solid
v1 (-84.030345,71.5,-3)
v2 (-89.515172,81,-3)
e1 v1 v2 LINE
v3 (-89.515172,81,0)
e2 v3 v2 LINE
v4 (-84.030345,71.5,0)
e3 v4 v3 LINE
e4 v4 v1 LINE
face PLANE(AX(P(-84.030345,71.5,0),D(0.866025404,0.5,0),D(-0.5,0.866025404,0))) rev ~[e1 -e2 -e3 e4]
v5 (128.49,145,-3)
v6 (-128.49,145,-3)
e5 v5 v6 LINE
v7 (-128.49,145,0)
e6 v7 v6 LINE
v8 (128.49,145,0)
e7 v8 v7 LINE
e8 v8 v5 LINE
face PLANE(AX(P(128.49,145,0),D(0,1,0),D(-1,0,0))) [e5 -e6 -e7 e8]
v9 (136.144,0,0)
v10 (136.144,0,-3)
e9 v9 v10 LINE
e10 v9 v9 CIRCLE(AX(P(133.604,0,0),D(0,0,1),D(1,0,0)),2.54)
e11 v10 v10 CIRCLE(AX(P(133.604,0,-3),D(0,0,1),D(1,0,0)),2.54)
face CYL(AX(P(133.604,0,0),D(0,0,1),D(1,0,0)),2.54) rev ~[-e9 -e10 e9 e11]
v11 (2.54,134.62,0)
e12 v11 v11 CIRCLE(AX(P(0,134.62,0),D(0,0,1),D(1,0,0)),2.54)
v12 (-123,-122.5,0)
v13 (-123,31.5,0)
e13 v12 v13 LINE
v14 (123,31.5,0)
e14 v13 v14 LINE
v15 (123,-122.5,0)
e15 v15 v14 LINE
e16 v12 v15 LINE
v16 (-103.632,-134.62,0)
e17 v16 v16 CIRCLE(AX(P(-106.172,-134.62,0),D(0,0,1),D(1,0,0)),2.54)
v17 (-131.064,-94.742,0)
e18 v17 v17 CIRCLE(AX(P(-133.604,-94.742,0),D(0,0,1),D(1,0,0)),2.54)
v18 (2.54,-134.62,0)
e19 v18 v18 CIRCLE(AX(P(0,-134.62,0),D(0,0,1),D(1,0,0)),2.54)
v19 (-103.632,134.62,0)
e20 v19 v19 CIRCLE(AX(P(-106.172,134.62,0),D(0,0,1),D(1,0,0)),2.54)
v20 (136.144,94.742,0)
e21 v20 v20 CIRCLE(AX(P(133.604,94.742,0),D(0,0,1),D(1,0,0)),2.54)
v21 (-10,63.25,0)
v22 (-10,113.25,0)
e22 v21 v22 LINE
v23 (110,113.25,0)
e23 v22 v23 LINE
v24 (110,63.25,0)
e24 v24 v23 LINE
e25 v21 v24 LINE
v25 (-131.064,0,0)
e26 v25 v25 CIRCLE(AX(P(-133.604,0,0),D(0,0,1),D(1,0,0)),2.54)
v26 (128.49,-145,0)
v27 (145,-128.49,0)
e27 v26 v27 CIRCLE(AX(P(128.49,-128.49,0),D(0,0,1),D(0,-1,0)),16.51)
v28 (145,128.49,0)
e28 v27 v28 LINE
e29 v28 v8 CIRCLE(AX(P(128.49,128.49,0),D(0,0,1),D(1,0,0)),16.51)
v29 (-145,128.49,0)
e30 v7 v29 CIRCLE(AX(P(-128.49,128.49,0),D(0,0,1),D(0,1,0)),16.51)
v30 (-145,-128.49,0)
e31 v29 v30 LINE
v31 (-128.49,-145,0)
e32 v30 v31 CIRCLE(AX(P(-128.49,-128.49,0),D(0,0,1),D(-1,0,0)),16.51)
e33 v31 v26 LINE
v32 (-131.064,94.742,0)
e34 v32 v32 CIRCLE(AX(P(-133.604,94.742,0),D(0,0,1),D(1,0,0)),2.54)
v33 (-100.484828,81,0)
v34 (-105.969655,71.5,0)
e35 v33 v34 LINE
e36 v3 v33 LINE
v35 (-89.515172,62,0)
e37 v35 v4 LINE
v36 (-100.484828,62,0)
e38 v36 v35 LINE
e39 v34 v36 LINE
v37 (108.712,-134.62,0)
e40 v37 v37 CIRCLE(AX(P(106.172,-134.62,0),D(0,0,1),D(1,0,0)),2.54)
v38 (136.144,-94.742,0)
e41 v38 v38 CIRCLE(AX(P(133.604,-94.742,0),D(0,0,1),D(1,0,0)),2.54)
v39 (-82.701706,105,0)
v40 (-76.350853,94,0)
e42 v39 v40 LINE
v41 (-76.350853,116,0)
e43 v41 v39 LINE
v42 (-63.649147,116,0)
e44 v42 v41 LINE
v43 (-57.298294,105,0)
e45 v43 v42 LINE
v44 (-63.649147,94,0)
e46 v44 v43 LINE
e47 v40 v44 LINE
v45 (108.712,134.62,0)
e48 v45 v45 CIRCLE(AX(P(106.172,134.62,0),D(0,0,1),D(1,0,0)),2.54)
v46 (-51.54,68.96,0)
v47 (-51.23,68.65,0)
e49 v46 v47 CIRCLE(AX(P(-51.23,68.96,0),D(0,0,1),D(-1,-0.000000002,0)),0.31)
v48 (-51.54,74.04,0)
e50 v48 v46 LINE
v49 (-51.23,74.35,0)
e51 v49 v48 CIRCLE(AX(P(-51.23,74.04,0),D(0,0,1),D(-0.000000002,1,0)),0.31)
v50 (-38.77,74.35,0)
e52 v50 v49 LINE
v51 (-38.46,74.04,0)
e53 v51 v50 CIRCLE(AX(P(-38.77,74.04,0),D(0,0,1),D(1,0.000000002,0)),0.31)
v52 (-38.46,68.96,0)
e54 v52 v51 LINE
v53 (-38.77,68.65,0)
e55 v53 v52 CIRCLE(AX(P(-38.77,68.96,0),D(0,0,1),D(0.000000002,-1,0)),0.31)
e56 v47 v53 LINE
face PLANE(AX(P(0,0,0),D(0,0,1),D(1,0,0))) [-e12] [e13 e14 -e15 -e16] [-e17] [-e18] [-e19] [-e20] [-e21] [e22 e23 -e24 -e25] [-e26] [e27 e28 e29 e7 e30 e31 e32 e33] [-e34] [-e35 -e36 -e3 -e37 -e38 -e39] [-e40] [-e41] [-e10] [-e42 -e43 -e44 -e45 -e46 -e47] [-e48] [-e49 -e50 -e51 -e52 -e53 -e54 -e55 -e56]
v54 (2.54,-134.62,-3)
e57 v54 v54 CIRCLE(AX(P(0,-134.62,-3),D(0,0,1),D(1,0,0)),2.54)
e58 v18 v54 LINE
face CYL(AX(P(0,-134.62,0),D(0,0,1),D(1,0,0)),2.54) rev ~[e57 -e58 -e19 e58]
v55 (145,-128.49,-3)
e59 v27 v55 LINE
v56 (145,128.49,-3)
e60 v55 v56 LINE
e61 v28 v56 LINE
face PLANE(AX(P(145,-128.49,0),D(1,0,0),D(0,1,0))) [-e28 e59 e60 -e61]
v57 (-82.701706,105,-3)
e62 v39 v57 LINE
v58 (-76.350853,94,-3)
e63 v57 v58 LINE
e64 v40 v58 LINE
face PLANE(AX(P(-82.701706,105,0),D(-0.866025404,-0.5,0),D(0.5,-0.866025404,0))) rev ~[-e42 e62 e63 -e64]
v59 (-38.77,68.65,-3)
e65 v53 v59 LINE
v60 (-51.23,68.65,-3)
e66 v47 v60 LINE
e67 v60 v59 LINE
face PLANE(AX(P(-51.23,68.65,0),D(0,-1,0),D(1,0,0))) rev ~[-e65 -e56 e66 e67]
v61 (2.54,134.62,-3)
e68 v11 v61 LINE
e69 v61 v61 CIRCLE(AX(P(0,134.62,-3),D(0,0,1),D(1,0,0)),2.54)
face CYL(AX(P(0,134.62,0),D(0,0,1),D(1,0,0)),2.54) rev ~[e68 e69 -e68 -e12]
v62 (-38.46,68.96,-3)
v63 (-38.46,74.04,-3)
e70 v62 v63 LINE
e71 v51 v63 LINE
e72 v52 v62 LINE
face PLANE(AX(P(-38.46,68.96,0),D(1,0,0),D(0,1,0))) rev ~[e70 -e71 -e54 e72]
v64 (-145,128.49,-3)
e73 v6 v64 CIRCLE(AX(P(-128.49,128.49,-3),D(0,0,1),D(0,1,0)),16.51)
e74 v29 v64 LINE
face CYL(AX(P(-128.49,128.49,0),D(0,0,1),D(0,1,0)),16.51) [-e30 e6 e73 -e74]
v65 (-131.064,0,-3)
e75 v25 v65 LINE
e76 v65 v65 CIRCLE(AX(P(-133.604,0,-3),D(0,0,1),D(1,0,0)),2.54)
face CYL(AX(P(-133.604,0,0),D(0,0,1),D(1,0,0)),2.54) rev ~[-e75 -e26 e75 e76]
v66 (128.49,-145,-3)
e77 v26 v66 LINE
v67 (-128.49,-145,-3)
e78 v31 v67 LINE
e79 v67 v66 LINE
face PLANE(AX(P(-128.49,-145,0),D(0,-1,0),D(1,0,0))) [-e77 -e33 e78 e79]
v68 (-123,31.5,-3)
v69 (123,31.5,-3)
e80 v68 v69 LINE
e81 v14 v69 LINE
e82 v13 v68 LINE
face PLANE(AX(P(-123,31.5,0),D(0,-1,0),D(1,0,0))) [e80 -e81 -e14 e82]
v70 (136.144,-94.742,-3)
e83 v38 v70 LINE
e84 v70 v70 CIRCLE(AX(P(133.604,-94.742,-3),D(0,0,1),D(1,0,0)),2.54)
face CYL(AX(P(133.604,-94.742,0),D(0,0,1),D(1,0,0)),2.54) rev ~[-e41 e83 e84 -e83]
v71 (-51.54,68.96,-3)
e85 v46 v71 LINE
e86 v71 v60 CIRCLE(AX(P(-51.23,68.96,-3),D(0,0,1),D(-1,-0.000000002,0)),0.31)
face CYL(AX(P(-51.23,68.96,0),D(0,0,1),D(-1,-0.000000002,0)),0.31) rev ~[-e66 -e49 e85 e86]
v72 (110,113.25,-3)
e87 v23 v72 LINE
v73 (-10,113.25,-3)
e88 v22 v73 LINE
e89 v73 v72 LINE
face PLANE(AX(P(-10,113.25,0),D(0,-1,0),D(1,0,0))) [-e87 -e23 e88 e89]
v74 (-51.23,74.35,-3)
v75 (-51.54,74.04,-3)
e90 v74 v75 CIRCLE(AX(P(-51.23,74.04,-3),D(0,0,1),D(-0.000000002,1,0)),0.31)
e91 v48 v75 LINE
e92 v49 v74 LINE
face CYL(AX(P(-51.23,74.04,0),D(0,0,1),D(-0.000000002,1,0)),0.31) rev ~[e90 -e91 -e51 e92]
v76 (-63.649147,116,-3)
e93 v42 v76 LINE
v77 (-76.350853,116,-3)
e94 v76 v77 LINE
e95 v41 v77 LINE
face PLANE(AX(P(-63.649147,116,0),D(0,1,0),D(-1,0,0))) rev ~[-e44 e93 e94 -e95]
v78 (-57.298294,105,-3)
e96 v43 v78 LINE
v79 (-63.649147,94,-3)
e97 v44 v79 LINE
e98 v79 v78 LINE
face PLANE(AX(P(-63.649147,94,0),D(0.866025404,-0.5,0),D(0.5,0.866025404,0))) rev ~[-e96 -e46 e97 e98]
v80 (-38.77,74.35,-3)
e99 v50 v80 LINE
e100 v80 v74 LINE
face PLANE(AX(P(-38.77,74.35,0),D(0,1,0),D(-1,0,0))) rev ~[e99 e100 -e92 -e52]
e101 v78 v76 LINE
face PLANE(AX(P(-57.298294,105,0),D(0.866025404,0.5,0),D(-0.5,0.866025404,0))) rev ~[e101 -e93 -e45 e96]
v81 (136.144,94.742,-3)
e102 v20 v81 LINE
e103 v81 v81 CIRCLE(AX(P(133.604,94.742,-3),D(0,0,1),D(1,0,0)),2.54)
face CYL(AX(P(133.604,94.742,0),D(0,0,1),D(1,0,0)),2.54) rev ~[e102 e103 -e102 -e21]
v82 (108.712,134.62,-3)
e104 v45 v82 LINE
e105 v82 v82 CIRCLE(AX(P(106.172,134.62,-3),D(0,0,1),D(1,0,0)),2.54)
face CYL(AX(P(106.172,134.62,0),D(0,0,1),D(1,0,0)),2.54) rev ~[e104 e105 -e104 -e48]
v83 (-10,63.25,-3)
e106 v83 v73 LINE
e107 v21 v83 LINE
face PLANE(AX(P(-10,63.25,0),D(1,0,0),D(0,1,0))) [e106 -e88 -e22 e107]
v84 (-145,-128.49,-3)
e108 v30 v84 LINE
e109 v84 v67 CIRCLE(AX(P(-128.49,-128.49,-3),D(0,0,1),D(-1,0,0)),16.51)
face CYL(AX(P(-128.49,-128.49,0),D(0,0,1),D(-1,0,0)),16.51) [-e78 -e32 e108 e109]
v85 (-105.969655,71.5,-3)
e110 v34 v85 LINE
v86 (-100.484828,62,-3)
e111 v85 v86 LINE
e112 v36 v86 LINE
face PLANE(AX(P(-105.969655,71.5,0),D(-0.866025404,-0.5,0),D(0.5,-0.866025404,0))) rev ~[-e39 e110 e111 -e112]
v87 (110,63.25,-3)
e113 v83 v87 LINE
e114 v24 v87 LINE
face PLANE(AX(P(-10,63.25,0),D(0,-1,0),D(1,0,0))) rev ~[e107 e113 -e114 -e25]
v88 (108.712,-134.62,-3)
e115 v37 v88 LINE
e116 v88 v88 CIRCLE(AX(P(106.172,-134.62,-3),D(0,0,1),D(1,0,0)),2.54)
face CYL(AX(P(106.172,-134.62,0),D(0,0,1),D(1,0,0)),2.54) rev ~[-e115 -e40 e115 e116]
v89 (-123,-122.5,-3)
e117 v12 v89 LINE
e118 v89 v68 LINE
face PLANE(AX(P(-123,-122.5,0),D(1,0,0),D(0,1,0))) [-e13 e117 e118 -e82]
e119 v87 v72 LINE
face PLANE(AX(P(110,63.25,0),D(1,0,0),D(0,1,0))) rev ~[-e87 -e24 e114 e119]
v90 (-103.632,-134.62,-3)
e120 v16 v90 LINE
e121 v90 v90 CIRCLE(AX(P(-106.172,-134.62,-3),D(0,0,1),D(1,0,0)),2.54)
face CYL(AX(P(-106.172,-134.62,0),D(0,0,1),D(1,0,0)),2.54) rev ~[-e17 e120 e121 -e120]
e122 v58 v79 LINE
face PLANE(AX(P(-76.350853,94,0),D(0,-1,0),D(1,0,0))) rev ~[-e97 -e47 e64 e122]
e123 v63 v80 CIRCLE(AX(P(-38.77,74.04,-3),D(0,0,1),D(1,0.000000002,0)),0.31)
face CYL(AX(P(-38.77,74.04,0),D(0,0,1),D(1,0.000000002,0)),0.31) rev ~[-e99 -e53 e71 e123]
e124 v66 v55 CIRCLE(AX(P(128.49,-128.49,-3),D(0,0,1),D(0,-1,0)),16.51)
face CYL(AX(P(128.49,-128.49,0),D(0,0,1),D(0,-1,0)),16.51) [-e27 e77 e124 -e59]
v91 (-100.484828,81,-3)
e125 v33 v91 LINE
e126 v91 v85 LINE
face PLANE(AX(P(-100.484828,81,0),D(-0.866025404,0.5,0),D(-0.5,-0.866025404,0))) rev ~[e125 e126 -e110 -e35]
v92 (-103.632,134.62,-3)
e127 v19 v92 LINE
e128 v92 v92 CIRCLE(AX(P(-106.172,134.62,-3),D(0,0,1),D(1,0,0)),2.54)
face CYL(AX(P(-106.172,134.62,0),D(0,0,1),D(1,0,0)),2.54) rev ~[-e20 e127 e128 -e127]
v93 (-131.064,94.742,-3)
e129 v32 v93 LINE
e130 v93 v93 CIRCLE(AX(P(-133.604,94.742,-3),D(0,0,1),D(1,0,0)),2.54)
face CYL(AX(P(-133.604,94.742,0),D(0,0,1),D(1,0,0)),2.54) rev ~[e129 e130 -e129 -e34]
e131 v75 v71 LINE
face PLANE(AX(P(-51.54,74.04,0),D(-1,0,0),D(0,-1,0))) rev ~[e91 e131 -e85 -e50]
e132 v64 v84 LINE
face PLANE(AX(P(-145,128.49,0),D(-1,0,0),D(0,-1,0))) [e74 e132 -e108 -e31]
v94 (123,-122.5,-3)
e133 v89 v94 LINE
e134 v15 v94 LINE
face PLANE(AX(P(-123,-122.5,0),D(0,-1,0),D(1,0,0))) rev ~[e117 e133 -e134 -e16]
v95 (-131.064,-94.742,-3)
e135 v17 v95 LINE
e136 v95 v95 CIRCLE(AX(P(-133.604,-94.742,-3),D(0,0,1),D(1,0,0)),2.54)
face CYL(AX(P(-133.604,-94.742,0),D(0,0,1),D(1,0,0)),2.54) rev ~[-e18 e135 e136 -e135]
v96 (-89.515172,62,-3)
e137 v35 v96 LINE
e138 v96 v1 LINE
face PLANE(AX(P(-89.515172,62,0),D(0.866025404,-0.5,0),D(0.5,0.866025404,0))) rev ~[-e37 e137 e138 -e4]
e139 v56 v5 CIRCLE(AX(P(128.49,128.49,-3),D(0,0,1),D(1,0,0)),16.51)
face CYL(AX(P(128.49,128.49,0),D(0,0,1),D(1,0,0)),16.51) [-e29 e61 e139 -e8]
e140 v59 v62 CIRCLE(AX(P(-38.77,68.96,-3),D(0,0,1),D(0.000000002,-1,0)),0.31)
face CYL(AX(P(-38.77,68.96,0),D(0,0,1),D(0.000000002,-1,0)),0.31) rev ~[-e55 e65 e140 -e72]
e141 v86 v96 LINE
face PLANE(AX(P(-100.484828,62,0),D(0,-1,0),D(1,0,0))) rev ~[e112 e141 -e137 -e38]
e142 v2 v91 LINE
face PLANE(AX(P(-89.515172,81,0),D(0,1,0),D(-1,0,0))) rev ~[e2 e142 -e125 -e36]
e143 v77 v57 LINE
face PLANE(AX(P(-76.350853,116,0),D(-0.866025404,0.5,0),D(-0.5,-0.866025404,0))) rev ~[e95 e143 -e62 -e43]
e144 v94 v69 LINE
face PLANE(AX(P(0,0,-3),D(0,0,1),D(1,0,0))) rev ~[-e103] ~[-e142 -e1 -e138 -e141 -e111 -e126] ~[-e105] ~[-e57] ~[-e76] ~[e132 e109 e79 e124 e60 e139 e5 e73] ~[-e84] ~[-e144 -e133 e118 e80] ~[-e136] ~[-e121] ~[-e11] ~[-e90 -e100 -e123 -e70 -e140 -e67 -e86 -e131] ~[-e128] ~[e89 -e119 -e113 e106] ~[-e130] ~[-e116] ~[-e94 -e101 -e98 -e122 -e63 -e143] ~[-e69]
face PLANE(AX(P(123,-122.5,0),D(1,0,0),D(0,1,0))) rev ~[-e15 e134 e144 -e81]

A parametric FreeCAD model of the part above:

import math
import FreeCAD as App
import Part
import Sketcher

V = App.Vector
Q = App.Units.Quantity


def add_polygon(sketch, points):
    """Adds a closed chain of lines whose ends are joined by coincident constraints."""
    first, n = sketch.GeometryCount, len(points)
    for a, b in zip(points, points[1:] + points[:1]):
        sketch.addGeometry(Part.LineSegment(App.Vector(*a, 0), App.Vector(*b, 0)), False)
    for i in range(n):
        sketch.addConstraint(Sketcher.Constraint("Coincident", first + i, 2, first + (i + 1) % n, 1))

doc = App.newDocument("Part")
body = doc.addObject("PartDesign::Body", "Body")

sketch1 = doc.addObject("Sketcher::SketchObject", "Sketch")
body.addObject(sketch1)
sketch1.AttachmentSupport = (doc.XY_Plane, [""])
sketch1.MapMode = "FlatFace"
sketch1.addGeometry(Part.LineSegment(V(-128.49, -145, 0), V(128.49, -145, 0)), False)
sketch1.addGeometry(Part.ArcOfCircle(Part.Circle(V(128.49, -128.49, 0), V(0, 0, 1), 16.51), math.radians(-90), math.radians(0)), False)
sketch1.addGeometry(Part.LineSegment(V(145, -128.49, 0), V(145, 128.49, 0)), False)
sketch1.addGeometry(Part.ArcOfCircle(Part.Circle(V(128.49, 128.49, 0), V(0, 0, 1), 16.51), math.radians(0), math.radians(90)), False)
sketch1.addGeometry(Part.LineSegment(V(128.49, 145, 0), V(-128.49, 145, 0)), False)
sketch1.addGeometry(Part.ArcOfCircle(Part.Circle(V(-128.49, 128.49, 0), V(0, 0, 1), 16.51), math.radians(90), math.radians(180)), False)
sketch1.addGeometry(Part.LineSegment(V(-145, 128.49, 0), V(-145, -128.49, 0)), False)
sketch1.addGeometry(Part.ArcOfCircle(Part.Circle(V(-128.49, -128.49, 0), V(0, 0, 1), 16.51), math.radians(-180), math.radians(-90)), False)
add_polygon(sketch1, [(123, -122.5), (-123, -122.5), (-123, 31.5), (123, 31.5)])
add_polygon(sketch1, [(-89.52, 81), (-84.03, 71.5), (-89.52, 62), (-100.48, 62), (-105.97, 71.5), (-100.48, 81)])
add_polygon(sketch1, [(-63.65, 116), (-57.3, 105), (-63.65, 94), (-76.35, 94), (-82.7, 105), (-76.35, 116)])
sketch1.addGeometry(Part.LineSegment(V(-51.23, 74.35, 0), V(-38.77, 74.35, 0)), False)
sketch1.addGeometry(Part.ArcOfCircle(Part.Circle(V(-38.77, 74.04, 0), V(0, 0, 1), 0.31), math.radians(0), math.radians(90)), False)
sketch1.addGeometry(Part.LineSegment(V(-38.46, 74.04, 0), V(-38.46, 68.96, 0)), False)
sketch1.addGeometry(Part.ArcOfCircle(Part.Circle(V(-38.77, 68.96, 0), V(0, 0, 1), 0.31), math.radians(-90), math.radians(0)), False)
sketch1.addGeometry(Part.LineSegment(V(-38.77, 68.65, 0), V(-51.23, 68.65, 0)), False)
sketch1.addGeometry(Part.ArcOfCircle(Part.Circle(V(-51.23, 68.96, 0), V(0, 0, 1), 0.31), math.radians(-180), math.radians(-90)), False)
sketch1.addGeometry(Part.LineSegment(V(-51.54, 68.96, 0), V(-51.54, 74.04, 0)), False)
sketch1.addGeometry(Part.ArcOfCircle(Part.Circle(V(-51.23, 74.04, 0), V(0, 0, 1), 0.31), math.radians(90), math.radians(180)), False)
add_polygon(sketch1, [(110, 63.25), (-10, 63.25), (-10, 113.25), (110, 113.25)])
sketch1.addConstraint([
    Sketcher.Constraint("Tangent", 0, 2, 1, 1),
    Sketcher.Constraint("Tangent", 1, 2, 2, 1),
    Sketcher.Constraint("Tangent", 2, 2, 3, 1),
    Sketcher.Constraint("Tangent", 3, 2, 4, 1),
    Sketcher.Constraint("Tangent", 4, 2, 5, 1),
    Sketcher.Constraint("Tangent", 5, 2, 6, 1),
    Sketcher.Constraint("Tangent", 6, 2, 7, 1),
    Sketcher.Constraint("Tangent", 7, 2, 0, 1),
    Sketcher.Constraint("Tangent", 24, 2, 25, 2),
    Sketcher.Constraint("Tangent", 25, 1, 26, 1),
    Sketcher.Constraint("Tangent", 26, 2, 27, 2),
    Sketcher.Constraint("Tangent", 27, 1, 28, 1),
    Sketcher.Constraint("Tangent", 28, 2, 29, 2),
    Sketcher.Constraint("Tangent", 29, 1, 30, 1),
    Sketcher.Constraint("Tangent", 30, 2, 31, 2),
    Sketcher.Constraint("Tangent", 31, 1, 24, 1),
    Sketcher.Constraint("Horizontal", 0),
    Sketcher.Constraint("Vertical", 2),
    Sketcher.Constraint("Horizontal", 4),
    Sketcher.Constraint("Vertical", 6),
    Sketcher.Constraint("Horizontal", 8),
    Sketcher.Constraint("Vertical", 9),
    Sketcher.Constraint("Horizontal", 10),
    Sketcher.Constraint("Vertical", 11),
    Sketcher.Constraint("Horizontal", 14),
    Sketcher.Constraint("Horizontal", 17),
    Sketcher.Constraint("Horizontal", 20),
    Sketcher.Constraint("Horizontal", 23),
    Sketcher.Constraint("Horizontal", 24),
    Sketcher.Constraint("Vertical", 26),
    Sketcher.Constraint("Horizontal", 28),
    Sketcher.Constraint("Vertical", 30),
    Sketcher.Constraint("Horizontal", 32),
    Sketcher.Constraint("Vertical", 33),
    Sketcher.Constraint("Horizontal", 34),
    Sketcher.Constraint("Vertical", 35),
    Sketcher.Constraint("Equal", 1, 3),
    Sketcher.Constraint("Equal", 3, 5),
    Sketcher.Constraint("Equal", 5, 7),
    Sketcher.Constraint("Equal", 25, 27),
    Sketcher.Constraint("Equal", 27, 29),
    Sketcher.Constraint("Equal", 29, 31),
    Sketcher.Constraint("Symmetric", 1, 3, 5, 3, -1, 1),
    Sketcher.Constraint("Parallel", 12, 15),
    Sketcher.Constraint("Parallel", 13, 16),
    Sketcher.Constraint("Parallel", 15, 18),
    Sketcher.Constraint("Parallel", 16, 19),
    Sketcher.Constraint("Parallel", 18, 21),
    Sketcher.Constraint("Parallel", 19, 22),
    Sketcher.Constraint("Horizontal", 12, 2, 15, 2),
    Sketcher.Constraint("Horizontal", 18, 2, 21, 2),
    Sketcher.Constraint("Vertical", 14, 2, 16, 2),
    Sketcher.Constraint("Vertical", 13, 2, 17, 2),
    Sketcher.Constraint("Vertical", 20, 2, 22, 2),
    Sketcher.Constraint("Equal", 4, 2),
    Sketcher.Constraint("DistanceX", 8, 2, 8, 1, Q("246 mm")),
    Sketcher.Constraint("DistanceX", 32, 2, 32, 1, Q("120 mm")),
    Sketcher.Constraint("DistanceY", 9, 1, 9, 2, Q("154 mm")),
    Sketcher.Constraint("DistanceY", 33, 1, 33, 2, Q("50 mm")),
    Sketcher.Constraint("Angle", 12, Q("-60 deg")),
    Sketcher.Constraint("Radius", 1, Q("16.51 mm")),
    Sketcher.Constraint("Radius", 25, Q("0.31 mm")),
    Sketcher.Constraint("DistanceY", 0, 2, -1, 1, Q("145 mm")),
    Sketcher.Constraint("DistanceX", 8, 2, -1, 1, Q("123 mm")),
    Sketcher.Constraint("DistanceY", -1, 1, 13, 2, Q("62 mm")),
    Sketcher.Constraint("DistanceY", -1, 1, 16, 2, Q("81 mm")),
    Sketcher.Constraint("DistanceY", -1, 1, 18, 2, Q("105 mm")),
    Sketcher.Constraint("DistanceY", -1, 1, 19, 2, Q("94 mm")),
    Sketcher.Constraint("DistanceX", 32, 2, -1, 1, Q("10 mm")),
    Sketcher.Constraint("DistanceY", 9, 2, 12, 2, Q("40 mm")),
    Sketcher.Constraint("DistanceX", 24, 1, 24, 2, Q("12.46 mm")),
    Sketcher.Constraint("DistanceY", 26, 2, 26, 1, Q("5.08 mm")),
    Sketcher.Constraint("DistanceY", 32, 2, 27, 1, Q("5.4 mm")),
    Sketcher.Constraint("DistanceX", 25, 3, -1, 1, Q("38.77 mm")),
    Sketcher.Constraint("DistanceY", -1, 1, 25, 3, Q("74.04 mm")),
    Sketcher.Constraint("DistanceX", 14, 2, 14, 1, Q("10.969655 mm")),
    Sketcher.Constraint("DistanceX", 20, 2, 20, 1, Q("12.701706 mm")),
    Sketcher.Constraint("DistanceX", 17, 2, 18, 2, Q("32.216878 mm")),
    Sketcher.Constraint("DistanceX", 12, 2, -1, 1, Q("84.030345 mm")),
])
pad1 = doc.addObject("PartDesign::Pad", "Pad")
body.addObject(pad1)
pad1.Profile = sketch1
pad1.Length = 3
pad1.Reversed = True

sketch2 = doc.addObject("Sketcher::SketchObject", "Sketch001")
body.addObject(sketch2)
sketch2.AttachmentSupport = (doc.XY_Plane, [""])
sketch2.MapMode = "FlatFace"
sketch2.addGeometry([
    Part.Circle(V(-133.6, 94.7, 0), V(0, 0, 1), 2.5),
    Part.Circle(V(-106.2, 134.6, 0), V(0, 0, 1), 2.5),
    Part.Circle(V(-133.6, -94.7, 0), V(0, 0, 1), 2.5),
    Part.Circle(V(-133.6, 0, 0), V(0, 0, 1), 2.5),
    Part.Circle(V(0, 134.6, 0), V(0, 0, 1), 2.5),
    Part.Circle(V(0, -134.6, 0), V(0, 0, 1), 2.5),
    Part.Circle(V(-106.2, -134.6, 0), V(0, 0, 1), 2.5),
    Part.Circle(V(106.2, -134.6, 0), V(0, 0, 1), 2.5),
    Part.Circle(V(133.6, 0, 0), V(0, 0, 1), 2.5),
    Part.Circle(V(133.6, -94.7, 0), V(0, 0, 1), 2.5),
    Part.Circle(V(106.2, 134.6, 0), V(0, 0, 1), 2.5),
    Part.Circle(V(133.6, 94.7, 0), V(0, 0, 1), 2.5),
], False)
sketch2.addConstraint([
    Sketcher.Constraint("Equal", 0, 1),
    Sketcher.Constraint("Equal", 1, 2),
    Sketcher.Constraint("Equal", 2, 3),
    Sketcher.Constraint("Equal", 3, 4),
    Sketcher.Constraint("Equal", 4, 5),
    Sketcher.Constraint("Equal", 5, 6),
    Sketcher.Constraint("Equal", 6, 7),
    Sketcher.Constraint("Equal", 7, 8),
    Sketcher.Constraint("Equal", 8, 9),
    Sketcher.Constraint("Equal", 9, 10),
    Sketcher.Constraint("Equal", 10, 11),
    Sketcher.Constraint("Symmetric", 4, 3, 5, 3, -1, 1),
    Sketcher.Constraint("Symmetric", 1, 3, 7, 3, -1, 1),
    Sketcher.Constraint("Symmetric", 3, 3, 8, 3, -1, 1),
    Sketcher.Constraint("Symmetric", 0, 3, 9, 3, -1, 1),
    Sketcher.Constraint("Symmetric", 6, 3, 10, 3, -1, 1),
    Sketcher.Constraint("Symmetric", 2, 3, 11, 3, -1, 1),
    Sketcher.Constraint("Symmetric", 6, 3, 7, 3, -2),
    Sketcher.Constraint("Symmetric", 2, 3, 9, 3, -2),
    Sketcher.Constraint("PointOnObject", 3, 3, -1),
    Sketcher.Constraint("PointOnObject", 4, 3, -2),
    Sketcher.Constraint("Horizontal", 1, 3, 4, 3),
    Sketcher.Constraint("Vertical", 2, 3, 3, 3),
    Sketcher.Constraint("Diameter", 0, Q("5.08 mm")),
    Sketcher.Constraint("DistanceY", -1, 1, 1, 3, Q("134.62 mm")),
    Sketcher.Constraint("DistanceX", 0, 3, -1, 1, Q("133.604 mm")),
    Sketcher.Constraint("DistanceY", -1, 1, 0, 3, Q("94.742 mm")),
    Sketcher.Constraint("DistanceX", 1, 3, -1, 1, Q("106.172 mm")),
])
pocket1 = doc.addObject("PartDesign::Pocket", "Pocket")
body.addObject(pocket1)
pocket1.Profile = sketch2
pocket1.Length = 47.752

doc.recompute()
